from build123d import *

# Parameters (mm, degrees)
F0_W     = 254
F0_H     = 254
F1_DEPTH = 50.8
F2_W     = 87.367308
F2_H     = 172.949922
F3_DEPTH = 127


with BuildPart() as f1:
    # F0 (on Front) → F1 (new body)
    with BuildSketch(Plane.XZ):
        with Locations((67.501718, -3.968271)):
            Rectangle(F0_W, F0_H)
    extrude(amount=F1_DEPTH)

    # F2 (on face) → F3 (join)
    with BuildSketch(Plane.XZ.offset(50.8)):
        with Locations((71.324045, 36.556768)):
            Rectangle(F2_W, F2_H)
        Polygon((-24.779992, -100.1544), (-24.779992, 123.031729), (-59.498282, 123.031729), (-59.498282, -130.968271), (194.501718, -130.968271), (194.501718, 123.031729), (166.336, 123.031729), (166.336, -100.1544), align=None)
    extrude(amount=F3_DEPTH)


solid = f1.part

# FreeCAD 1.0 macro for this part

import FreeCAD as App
import Part
import Sketcher
Q = App.Units.Quantity

doc = App.newDocument("Part")
params = doc.addObject("Spreadsheet::Sheet", "Params")
for row, (alias, value) in enumerate([
    ("sketch1_width", "10 in"),
    ("pad1_length", "2 in"),
    ("sketch2_width", "10 in"),
    ("pad2_length", "5 in"),
], start=1):
    params.set(f"A{row}", alias)
    params.set(f"B{row}", "=" + value)
    params.setAlias(f"B{row}", alias)

body = doc.addObject("PartDesign::Body", "Body")

# Sketch on XZ plane
sketch1 = body.newObject("Sketcher::SketchObject", "Sketch")
sketch1.AttachmentSupport = (doc.getObject("XZ_Plane"), [""])
sketch1.MapMode = "FlatFace"
sketch1.addGeometry([
    Part.LineSegment(App.Vector(-59, 123, 0), App.Vector(-59, -131, 0)),
    Part.LineSegment(App.Vector(-59, -131, 0), App.Vector(195, -131, 0)),
    Part.LineSegment(App.Vector(195, -131, 0), App.Vector(195, 123, 0)),
    Part.LineSegment(App.Vector(195, 123, 0), App.Vector(-59, 123, 0)),
], False)
sketch1.addConstraint([
    Sketcher.Constraint("Coincident", 0, 2, 1, 1),
    Sketcher.Constraint("Coincident", 1, 2, 2, 1),
    Sketcher.Constraint("Coincident", 2, 2, 3, 1),
    Sketcher.Constraint("Coincident", 3, 2, 0, 1),
    Sketcher.Constraint("Vertical", 0),
    Sketcher.Constraint("Horizontal", 1),
    Sketcher.Constraint("Vertical", 2),
    Sketcher.Constraint("Horizontal", 3),
    Sketcher.Constraint("Equal", 3, 0),
    Sketcher.Constraint("DistanceX", 1, 1, 1, 2, Q("10 in")),
    Sketcher.Constraint("DistanceY", 0, 2, -1, 1, Q("130.968271 mm")),
    Sketcher.Constraint("DistanceX", -1, 1, 1, 2, Q("194.501718 mm")),
])
sketch1.setExpression("Constraints[9]", "Params.sketch1_width")
pad1 = body.newObject("PartDesign::Pad", "Pad")
pad1.Profile = sketch1
pad1.setExpression("Length", "Params.pad1_length")

# Sketch on XZ plane
sketch2 = body.newObject("Sketcher::SketchObject", "Sketch001")
sketch2.AttachmentSupport = (doc.getObject("XZ_Plane"), [""])
sketch2.MapMode = "FlatFace"
sketch2.AttachmentOffset = App.Placement(App.Vector(0, 0, 2 * 25.4), App.Rotation())
sketch2.addGeometry([
    Part.LineSegment(App.Vector(28, 123, 0), App.Vector(28, -50, 0)),  # 0
    Part.LineSegment(App.Vector(28, -50, 0), App.Vector(115, -50, 0)),  # 1
    Part.LineSegment(App.Vector(115, -50, 0), App.Vector(115, 123, 0)),  # 2
    Part.LineSegment(App.Vector(115, 123, 0), App.Vector(28, 123, 0)),  # 3
    Part.LineSegment(App.Vector(-25, -100, 0), App.Vector(-25, 123, 0)),  # 4
    Part.LineSegment(App.Vector(-25, 123, 0), App.Vector(-59, 123, 0)),  # 5
    Part.LineSegment(App.Vector(-59, 123, 0), App.Vector(-59, -131, 0)),  # 6
    Part.LineSegment(App.Vector(-59, -131, 0), App.Vector(195, -131, 0)),  # 7
    Part.LineSegment(App.Vector(195, -131, 0), App.Vector(195, 123, 0)),  # 8
    Part.LineSegment(App.Vector(195, 123, 0), App.Vector(166, 123, 0)),  # 9
    Part.LineSegment(App.Vector(166, 123, 0), App.Vector(166, -100, 0)),  # 10
    Part.LineSegment(App.Vector(166, -100, 0), App.Vector(-25, -100, 0)),  # 11
], False)
sketch2.addConstraint([
    Sketcher.Constraint("Coincident", 0, 2, 1, 1),
    Sketcher.Constraint("Coincident", 1, 2, 2, 1),
    Sketcher.Constraint("Coincident", 2, 2, 3, 1),
    Sketcher.Constraint("Coincident", 3, 2, 0, 1),
    Sketcher.Constraint("Coincident", 4, 2, 5, 1),
    Sketcher.Constraint("Coincident", 5, 2, 6, 1),
    Sketcher.Constraint("Coincident", 6, 2, 7, 1),
    Sketcher.Constraint("Coincident", 7, 2, 8, 1),
    Sketcher.Constraint("Coincident", 8, 2, 9, 1),
    Sketcher.Constraint("Coincident", 9, 2, 10, 1),
    Sketcher.Constraint("Coincident", 10, 2, 11, 1),
    Sketcher.Constraint("Coincident", 11, 2, 4, 1),
    Sketcher.Constraint("Vertical", 0),
    Sketcher.Constraint("Horizontal", 1),
    Sketcher.Constraint("Vertical", 2),
    Sketcher.Constraint("Horizontal", 3),
    Sketcher.Constraint("Vertical", 4),
    Sketcher.Constraint("Horizontal", 5),
    Sketcher.Constraint("Vertical", 6),
    Sketcher.Constraint("Horizontal", 7),
    Sketcher.Constraint("Vertical", 8),
    Sketcher.Constraint("Horizontal", 9),
    Sketcher.Constraint("Vertical", 10),
    Sketcher.Constraint("Horizontal", 11),
    Sketcher.Constraint("Horizontal", 3, 2, 4, 2),
    Sketcher.Constraint("Horizontal", 5, 2, 8, 2),
    Sketcher.Constraint("Equal", 7, 6),
    Sketcher.Constraint("DistanceX", 7, 1, 7, 2, Q("10 in")),
    Sketcher.Constraint("DistanceX", 1, 1, 1, 2, Q("87.367308 mm")),
    Sketcher.Constraint("DistanceX", 5, 2, 5, 1, Q("34.71829 mm")),
    Sketcher.Constraint("DistanceX", 11, 2, 11, 1, Q("191.115992 mm")),
    Sketcher.Constraint("DistanceY", 4, 1, 4, 2, Q("223.186129 mm")),
    Sketcher.Constraint("DistanceX", -1, 1, 1, 2, Q("115.007699 mm")),
    Sketcher.Constraint("DistanceX", -1, 1, 9, 2, Q("166.336 mm")),
    Sketcher.Constraint("DistanceY", 10, 2, -1, 1, Q("100.1544 mm")),
    Sketcher.Constraint("DistanceY", 0, 2, 0, 1, Q("172.949922 mm")),
])
sketch2.setExpression("Constraints[27]", "Params.sketch2_width")
pad2 = body.newObject("PartDesign::Pad", "Pad001")
pad2.Profile = sketch2
pad2.setExpression("Length", "Params.pad2_length")

doc.recompute()
